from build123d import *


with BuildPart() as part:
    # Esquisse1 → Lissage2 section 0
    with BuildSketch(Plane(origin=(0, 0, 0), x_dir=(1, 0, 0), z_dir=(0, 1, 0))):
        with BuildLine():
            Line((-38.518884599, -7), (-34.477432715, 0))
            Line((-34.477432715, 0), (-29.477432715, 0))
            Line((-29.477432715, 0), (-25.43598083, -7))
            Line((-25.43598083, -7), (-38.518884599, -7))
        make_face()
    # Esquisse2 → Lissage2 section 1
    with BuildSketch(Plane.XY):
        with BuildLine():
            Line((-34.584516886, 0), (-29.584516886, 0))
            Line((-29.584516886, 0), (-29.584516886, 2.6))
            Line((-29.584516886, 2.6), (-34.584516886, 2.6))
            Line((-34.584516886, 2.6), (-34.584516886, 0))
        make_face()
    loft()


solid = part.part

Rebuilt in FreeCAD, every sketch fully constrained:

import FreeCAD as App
import Part
import Sketcher
Q = App.Units.Quantity

doc = App.newDocument("Part")
body = doc.addObject("PartDesign::Body", "Body")

sketch1 = body.newObject("Sketcher::SketchObject", "Sketch")
sketch1.AttachmentSupport = (doc.getObject("XZ_Plane"), [""])
sketch1.MapMode = "FlatFace"
sketch1.addGeometry([
    Part.LineSegment(App.Vector(-34, 0, 0), App.Vector(-39, 7, 0)),
    Part.LineSegment(App.Vector(-39, 7, 0), App.Vector(-25, 7, 0)),
    Part.LineSegment(App.Vector(-25, 7, 0), App.Vector(-29, 0, 0)),
    Part.LineSegment(App.Vector(-29, 0, 0), App.Vector(-34, 0, 0)),
], False)
sketch1.addConstraint([
    Sketcher.Constraint("Coincident", 0, 2, 1, 1),
    Sketcher.Constraint("Coincident", 1, 2, 2, 1),
    Sketcher.Constraint("Coincident", 2, 2, 3, 1),
    Sketcher.Constraint("Coincident", 3, 2, 0, 1),
    Sketcher.Constraint("Horizontal", 1),
    Sketcher.Constraint("Horizontal", 3),
    Sketcher.Constraint("PointOnObject", 2, 2, -1),
    Sketcher.Constraint("Equal", 0, 2),
    Sketcher.Constraint("DistanceX", 3, 2, 3, 1, Q("5 mm")),
    Sketcher.Constraint("Angle", 0, Q("120 deg")),
    Sketcher.Constraint("DistanceY", -1, 1, 0, 2, Q("7 mm")),
    Sketcher.Constraint("DistanceX", 1, 2, -1, 1, Q("25.435981 mm")),
])

sketch2 = body.newObject("Sketcher::SketchObject", "Sketch001")
sketch2.AttachmentSupport = (doc.getObject("XY_Plane"), [""])
sketch2.MapMode = "FlatFace"
sketch2.addGeometry([
    Part.LineSegment(App.Vector(-34.6, 0, 0), App.Vector(-29.6, 0, 0)),
    Part.LineSegment(App.Vector(-29.6, 0, 0), App.Vector(-29.6, 2.6, 0)),
    Part.LineSegment(App.Vector(-29.6, 2.6, 0), App.Vector(-34.6, 2.6, 0)),
    Part.LineSegment(App.Vector(-34.6, 2.6, 0), App.Vector(-34.6, 0, 0)),
], False)
sketch2.addConstraint([
    Sketcher.Constraint("Coincident", 0, 2, 1, 1),
    Sketcher.Constraint("Coincident", 1, 2, 2, 1),
    Sketcher.Constraint("Coincident", 2, 2, 3, 1),
    Sketcher.Constraint("Coincident", 3, 2, 0, 1),
    Sketcher.Constraint("Horizontal", 0),
    Sketcher.Constraint("Vertical", 1),
    Sketcher.Constraint("Horizontal", 2),
    Sketcher.Constraint("Vertical", 3),
    Sketcher.Constraint("PointOnObject", 0, 2, -1),
    Sketcher.Constraint("DistanceX", 0, 1, 0, 2, Q("5 mm")),
    Sketcher.Constraint("DistanceY", 1, 1, 1, 2, Q("2.6 mm")),
    Sketcher.Constraint("DistanceX", 0, 2, -1, 1, Q("29.584517 mm")),
])

additiveloft = body.newObject("PartDesign::AdditiveLoft", "AdditiveLoft")
additiveloft.Profile = sketch1
additiveloft.Sections = [sketch2]

doc.recompute()
